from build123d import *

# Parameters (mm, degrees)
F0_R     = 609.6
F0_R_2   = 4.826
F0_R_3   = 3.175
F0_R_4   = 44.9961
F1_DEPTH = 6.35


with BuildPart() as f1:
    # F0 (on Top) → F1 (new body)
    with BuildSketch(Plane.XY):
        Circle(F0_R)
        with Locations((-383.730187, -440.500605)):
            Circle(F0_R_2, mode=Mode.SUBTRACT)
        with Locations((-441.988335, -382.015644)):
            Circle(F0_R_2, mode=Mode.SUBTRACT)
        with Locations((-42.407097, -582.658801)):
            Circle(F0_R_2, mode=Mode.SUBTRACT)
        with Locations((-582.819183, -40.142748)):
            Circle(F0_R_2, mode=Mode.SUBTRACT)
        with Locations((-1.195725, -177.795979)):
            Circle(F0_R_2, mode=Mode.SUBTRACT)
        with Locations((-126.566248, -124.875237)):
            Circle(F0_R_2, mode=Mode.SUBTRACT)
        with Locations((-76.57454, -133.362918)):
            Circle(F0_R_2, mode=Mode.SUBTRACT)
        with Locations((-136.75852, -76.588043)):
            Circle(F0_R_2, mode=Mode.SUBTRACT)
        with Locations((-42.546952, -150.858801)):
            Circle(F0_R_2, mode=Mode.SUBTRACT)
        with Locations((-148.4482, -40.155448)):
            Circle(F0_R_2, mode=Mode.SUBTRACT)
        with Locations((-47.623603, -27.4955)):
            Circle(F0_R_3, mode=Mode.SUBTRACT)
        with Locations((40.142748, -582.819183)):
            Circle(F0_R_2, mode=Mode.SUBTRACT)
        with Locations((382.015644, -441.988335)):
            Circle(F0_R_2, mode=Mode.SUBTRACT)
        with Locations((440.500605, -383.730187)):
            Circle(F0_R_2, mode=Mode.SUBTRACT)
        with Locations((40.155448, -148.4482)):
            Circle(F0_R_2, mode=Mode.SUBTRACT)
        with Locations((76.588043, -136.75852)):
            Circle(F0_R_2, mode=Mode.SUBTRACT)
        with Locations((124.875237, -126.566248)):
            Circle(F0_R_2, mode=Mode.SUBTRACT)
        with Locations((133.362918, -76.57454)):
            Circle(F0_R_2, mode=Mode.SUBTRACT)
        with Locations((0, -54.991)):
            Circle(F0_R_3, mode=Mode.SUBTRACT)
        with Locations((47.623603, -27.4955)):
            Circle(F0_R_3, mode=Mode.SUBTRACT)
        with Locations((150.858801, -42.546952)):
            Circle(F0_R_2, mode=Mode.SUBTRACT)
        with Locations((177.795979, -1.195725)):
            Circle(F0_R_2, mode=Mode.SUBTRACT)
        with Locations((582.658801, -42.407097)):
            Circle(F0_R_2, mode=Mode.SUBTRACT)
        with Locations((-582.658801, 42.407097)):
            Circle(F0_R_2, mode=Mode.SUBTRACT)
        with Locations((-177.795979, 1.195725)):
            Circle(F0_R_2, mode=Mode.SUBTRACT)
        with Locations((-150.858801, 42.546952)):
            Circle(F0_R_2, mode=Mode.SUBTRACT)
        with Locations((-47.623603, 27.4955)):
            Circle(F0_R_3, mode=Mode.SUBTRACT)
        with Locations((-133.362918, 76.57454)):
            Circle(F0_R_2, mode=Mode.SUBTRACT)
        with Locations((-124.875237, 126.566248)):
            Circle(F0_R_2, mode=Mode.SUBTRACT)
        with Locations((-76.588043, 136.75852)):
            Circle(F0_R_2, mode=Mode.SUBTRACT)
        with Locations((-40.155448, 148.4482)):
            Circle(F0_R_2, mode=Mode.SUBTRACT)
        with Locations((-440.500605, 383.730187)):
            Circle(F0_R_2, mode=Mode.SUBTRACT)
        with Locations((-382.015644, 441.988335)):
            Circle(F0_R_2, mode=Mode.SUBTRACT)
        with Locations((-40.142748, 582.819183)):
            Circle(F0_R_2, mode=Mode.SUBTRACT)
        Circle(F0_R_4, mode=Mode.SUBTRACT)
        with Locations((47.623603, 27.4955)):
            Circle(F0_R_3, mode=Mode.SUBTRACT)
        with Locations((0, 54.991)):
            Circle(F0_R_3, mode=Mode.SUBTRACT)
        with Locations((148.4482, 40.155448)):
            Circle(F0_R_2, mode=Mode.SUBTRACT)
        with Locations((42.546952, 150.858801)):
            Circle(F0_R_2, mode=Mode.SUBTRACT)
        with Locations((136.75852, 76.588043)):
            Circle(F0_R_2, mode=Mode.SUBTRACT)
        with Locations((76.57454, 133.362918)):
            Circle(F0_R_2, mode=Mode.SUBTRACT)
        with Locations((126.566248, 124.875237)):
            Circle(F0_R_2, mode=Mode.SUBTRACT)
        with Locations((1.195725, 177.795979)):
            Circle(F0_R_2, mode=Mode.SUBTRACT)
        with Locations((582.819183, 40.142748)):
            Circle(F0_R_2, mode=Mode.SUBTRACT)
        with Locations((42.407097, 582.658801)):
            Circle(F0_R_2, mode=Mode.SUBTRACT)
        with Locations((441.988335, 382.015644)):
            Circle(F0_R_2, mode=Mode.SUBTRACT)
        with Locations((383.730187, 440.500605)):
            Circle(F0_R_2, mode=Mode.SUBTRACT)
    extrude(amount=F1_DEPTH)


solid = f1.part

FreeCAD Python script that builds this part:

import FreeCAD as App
import Part
import Sketcher
Q = App.Units.Quantity

doc = App.newDocument("Part")
params = doc.addObject("Spreadsheet::Sheet", "Params")
for row, (alias, value) in enumerate([
    ("sketch1_diameter", "48 in"),
    ("sketch1_diameter2", "0.38 in"),
    ("sketch1_diameter3", "0.25 in"),
    ("sketch1_diameter4", "3.543 in"),
    ("pad1_length", "0.25 in"),
], start=1):
    params.set(f"A{row}", alias)
    params.set(f"B{row}", "=" + value)
    params.setAlias(f"B{row}", alias)

body = doc.addObject("PartDesign::Body", "Body")

sketch1 = doc.addObject("Sketcher::SketchObject", "Sketch")
body.addObject(sketch1)
sketch1.AttachmentSupport = (doc.XY_Plane, [""])
sketch1.MapMode = "FlatFace"
sketch1.addGeometry([
    Part.Circle(App.Vector(0, 0, 0), App.Vector(0, 0, 1), 609.6),
    Part.Circle(App.Vector(-441.988335, -382.015644, 0), App.Vector(0, 0, 1), 4.826),
    Part.Circle(App.Vector(-383.730187, -440.500605, 0), App.Vector(0, 0, 1), 4.826),
    Part.Circle(App.Vector(-42.407097, -582.658801, 0), App.Vector(0, 0, 1), 4.826),
    Part.Circle(App.Vector(-582.819183, -40.142748, 0), App.Vector(0, 0, 1), 4.826),
    Part.Circle(App.Vector(-42.546952, -150.858801, 0), App.Vector(0, 0, 1), 4.826),
    Part.Circle(App.Vector(-1.195725, -177.795979, 0), App.Vector(0, 0, 1), 4.826),
    Part.Circle(App.Vector(-148.4482, -40.155448, 0), App.Vector(0, 0, 1), 4.826),
    Part.Circle(App.Vector(-126.566248, -124.875237, 0), App.Vector(0, 0, 1), 4.826),
    Part.Circle(App.Vector(-76.57454, -133.362918, 0), App.Vector(0, 0, 1), 4.826),
    Part.Circle(App.Vector(-136.75852, -76.588043, 0), App.Vector(0, 0, 1), 4.826),
    Part.Circle(App.Vector(0, -54.991, 0), App.Vector(0, 0, 1), 3.175),
    Part.Circle(App.Vector(-47.623603, -27.4955, 0), App.Vector(0, 0, 1), 3.175),
    Part.Circle(App.Vector(0, 0, 0), App.Vector(0, 0, 1), 44.9961),
    Part.Circle(App.Vector(40.142748, -582.819183, 0), App.Vector(0, 0, 1), 4.826),
    Part.Circle(App.Vector(382.015644, -441.988335, 0), App.Vector(0, 0, 1), 4.826),
    Part.Circle(App.Vector(440.500605, -383.730187, 0), App.Vector(0, 0, 1), 4.826),
    Part.Circle(App.Vector(40.155448, -148.4482, 0), App.Vector(0, 0, 1), 4.826),
    Part.Circle(App.Vector(76.588043, -136.75852, 0), App.Vector(0, 0, 1), 4.826),
    Part.Circle(App.Vector(124.875237, -126.566248, 0), App.Vector(0, 0, 1), 4.826),
    Part.Circle(App.Vector(133.362918, -76.57454, 0), App.Vector(0, 0, 1), 4.826),
    Part.Circle(App.Vector(47.623603, -27.4955, 0), App.Vector(0, 0, 1), 3.175),
    Part.Circle(App.Vector(150.858801, -42.546952, 0), App.Vector(0, 0, 1), 4.826),
    Part.Circle(App.Vector(177.795979, -1.195725, 0), App.Vector(0, 0, 1), 4.826),
    Part.Circle(App.Vector(582.658801, -42.407097, 0), App.Vector(0, 0, 1), 4.826),
    Part.Circle(App.Vector(-582.658801, 42.407097, 0), App.Vector(0, 0, 1), 4.826),
    Part.Circle(App.Vector(-177.795979, 1.195725, 0), App.Vector(0, 0, 1), 4.826),
    Part.Circle(App.Vector(-150.858801, 42.546952, 0), App.Vector(0, 0, 1), 4.826),
    Part.Circle(App.Vector(-47.623603, 27.4955, 0), App.Vector(0, 0, 1), 3.175),
    Part.Circle(App.Vector(0, 54.991, 0), App.Vector(0, 0, 1), 3.175),
    Part.Circle(App.Vector(-133.362918, 76.57454, 0), App.Vector(0, 0, 1), 4.826),
    Part.Circle(App.Vector(-124.875237, 126.566248, 0), App.Vector(0, 0, 1), 4.826),
    Part.Circle(App.Vector(-76.588043, 136.75852, 0), App.Vector(0, 0, 1), 4.826),
    Part.Circle(App.Vector(-40.155448, 148.4482, 0), App.Vector(0, 0, 1), 4.826),
    Part.Circle(App.Vector(-440.500605, 383.730187, 0), App.Vector(0, 0, 1), 4.826),
    Part.Circle(App.Vector(-382.015644, 441.988335, 0), App.Vector(0, 0, 1), 4.826),
    Part.Circle(App.Vector(-40.142748, 582.819183, 0), App.Vector(0, 0, 1), 4.826),
    Part.Circle(App.Vector(47.623603, 27.4955, 0), App.Vector(0, 0, 1), 3.175),
    Part.Circle(App.Vector(136.75852, 76.588043, 0), App.Vector(0, 0, 1), 4.826),
    Part.Circle(App.Vector(76.57454, 133.362918, 0), App.Vector(0, 0, 1), 4.826),
    Part.Circle(App.Vector(126.566248, 124.875237, 0), App.Vector(0, 0, 1), 4.826),
    Part.Circle(App.Vector(148.4482, 40.155448, 0), App.Vector(0, 0, 1), 4.826),
    Part.Circle(App.Vector(1.195725, 177.795979, 0), App.Vector(0, 0, 1), 4.826),
    Part.Circle(App.Vector(42.546952, 150.858801, 0), App.Vector(0, 0, 1), 4.826),
    Part.Circle(App.Vector(582.819183, 40.142748, 0), App.Vector(0, 0, 1), 4.826),
    Part.Circle(App.Vector(42.407097, 582.658801, 0), App.Vector(0, 0, 1), 4.826),
    Part.Circle(App.Vector(383.730187, 440.500605, 0), App.Vector(0, 0, 1), 4.826),
    Part.Circle(App.Vector(441.988335, 382.015644, 0), App.Vector(0, 0, 1), 4.826),
], False)
sketch1.addConstraint([
    Sketcher.Constraint("Coincident", 0, 3, -1, 1),
    Sketcher.Constraint("Coincident", 13, 3, -1, 1),
    Sketcher.Constraint("Equal", 1, 2),
    Sketcher.Constraint("Equal", 2, 3),
    Sketcher.Constraint("Equal", 3, 4),
    Sketcher.Constraint("Equal", 4, 5),
    Sketcher.Constraint("Equal", 5, 6),
    Sketcher.Constraint("Equal", 6, 7),
    Sketcher.Constraint("Equal", 7, 8),
    Sketcher.Constraint("Equal", 8, 9),
    Sketcher.Constraint("Equal", 9, 10),
    Sketcher.Constraint("Equal", 11, 12),
    Sketcher.Constraint("Equal", 10, 14),
    Sketcher.Constraint("Equal", 14, 15),
    Sketcher.Constraint("Equal", 15, 16),
    Sketcher.Constraint("Equal", 16, 17),
    Sketcher.Constraint("Equal", 17, 18),
    Sketcher.Constraint("Equal", 18, 19),
    Sketcher.Constraint("Equal", 19, 20),
    Sketcher.Constraint("Equal", 12, 21),
    Sketcher.Constraint("Equal", 20, 22),
    Sketcher.Constraint("Equal", 22, 23),
    Sketcher.Constraint("Equal", 23, 24),
    Sketcher.Constraint("Equal", 24, 25),
    Sketcher.Constraint("Equal", 25, 26),
    Sketcher.Constraint("Equal", 26, 27),
    Sketcher.Constraint("Equal", 21, 28),
    Sketcher.Constraint("Equal", 28, 29),
    Sketcher.Constraint("Equal", 27, 30),
    Sketcher.Constraint("Equal", 30, 31),
    Sketcher.Constraint("Equal", 31, 32),
    Sketcher.Constraint("Equal", 32, 33),
    Sketcher.Constraint("Equal", 33, 34),
    Sketcher.Constraint("Equal", 34, 35),
    Sketcher.Constraint("Equal", 35, 36),
    Sketcher.Constraint("Equal", 29, 37),
    Sketcher.Constraint("Equal", 36, 38),
    Sketcher.Constraint("Equal", 38, 39),
    Sketcher.Constraint("Equal", 39, 40),
    Sketcher.Constraint("Equal", 40, 41),
    Sketcher.Constraint("Equal", 41, 42),
    Sketcher.Constraint("Equal", 42, 43),
    Sketcher.Constraint("Equal", 43, 44),
    Sketcher.Constraint("Equal", 44, 45),
    Sketcher.Constraint("Equal", 45, 46),
    Sketcher.Constraint("Equal", 46, 47),
    Sketcher.Constraint("Symmetric", 24, 3, 25, 3, -1, 1),
    Sketcher.Constraint("Symmetric", 23, 3, 26, 3, -1, 1),
    Sketcher.Constraint("Symmetric", 22, 3, 27, 3, -1, 1),
    Sketcher.Constraint("Symmetric", 21, 3, 28, 3, -1, 1),
    Sketcher.Constraint("Symmetric", 11, 3, 29, 3, -1, 1),
    Sketcher.Constraint("Symmetric", 20, 3, 30, 3, -1, 1),
    Sketcher.Constraint("Symmetric", 19, 3, 31, 3, -1, 1),
    Sketcher.Constraint("Symmetric", 18, 3, 32, 3, -1, 1),
    Sketcher.Constraint("Symmetric", 17, 3, 33, 3, -1, 1),
    Sketcher.Constraint("Symmetric", 16, 3, 34, 3, -1, 1),
    Sketcher.Constraint("Symmetric", 15, 3, 35, 3, -1, 1),
    Sketcher.Constraint("Symmetric", 14, 3, 36, 3, -1, 1),
    Sketcher.Constraint("Symmetric", 12, 3, 37, 3, -1, 1),
    Sketcher.Constraint("Symmetric", 10, 3, 38, 3, -1, 1),
    Sketcher.Constraint("Symmetric", 9, 3, 39, 3, -1, 1),
    Sketcher.Constraint("Symmetric", 8, 3, 40, 3, -1, 1),
    Sketcher.Constraint("Symmetric", 7, 3, 41, 3, -1, 1),
    Sketcher.Constraint("Symmetric", 6, 3, 42, 3, -1, 1),
    Sketcher.Constraint("Symmetric", 5, 3, 43, 3, -1, 1),
    Sketcher.Constraint("Symmetric", 4, 3, 44, 3, -1, 1),
    Sketcher.Constraint("Symmetric", 3, 3, 45, 3, -1, 1),
    Sketcher.Constraint("Symmetric", 2, 3, 46, 3, -1, 1),
    Sketcher.Constraint("Symmetric", 1, 3, 47, 3, -1, 1),
    Sketcher.Constraint("Symmetric", 12, 3, 21, 3, -2),
    Sketcher.Constraint("PointOnObject", 11, 3, -2),
    Sketcher.Constraint("Diameter", 0, Q("48 in")),
    Sketcher.Constraint("Diameter", 1, Q("0.38 in")),
    Sketcher.Constraint("Diameter", 11, Q("0.25 in")),
    Sketcher.Constraint("Diameter", 13, Q("3.543 in")),
    Sketcher.Constraint("DistanceY", 3, 3, 5, 3, Q("17 in")),
    Sketcher.Constraint("DistanceX", 22, 3, 24, 3, Q("17 in")),
    Sketcher.Constraint("DistanceY", 11, 3, -1, 1, Q("2.165 in")),
    Sketcher.Constraint("DistanceX", 5, 3, 17, 3, Q("3.256 in")),
    Sketcher.Constraint("DistanceY", 7, 3, 27, 3, Q("3.256 in")),
    Sketcher.Constraint("DistanceY", 12, 3, 28, 3, Q("2.165 in")),
    Sketcher.Constraint("DistanceY", 7, 3, 4, 3, Q("0.0005 in")),
    Sketcher.Constraint("DistanceX", 5, 3, 14, 3, Q("3.2555 in")),
    Sketcher.Constraint("DistanceY", 3, 3, -1, 1, 582.658801),
    Sketcher.Constraint("DistanceX", 7, 3, -1, 1, 148.4482),
    Sketcher.Constraint("DistanceY", 17, 3, -1, 1, 148.4482),
    Sketcher.Constraint("DistanceX", -1, 1, 22, 3, 150.858801),
    Sketcher.Constraint("DistanceY", 18, 3, 9, 3, 3.395602),
    Sketcher.Constraint("DistanceX", 35, 3, 32, 3, 305.427601),
    Sketcher.Constraint("DistanceY", 38, 3, 47, 3, 305.427601),
    Sketcher.Constraint("DistanceX", 5, 3, -1, 1, 42.546952),
    Sketcher.Constraint("DistanceY", 6, 3, -1, 1, 177.795979),
    Sketcher.Constraint("DistanceX", 8, 3, -1, 1, 126.566248),
    Sketcher.Constraint("DistanceX", 9, 3, -1, 1, 76.57454),
    Sketcher.Constraint("DistanceY", 9, 3, -1, 1, 133.362918),
    Sketcher.Constraint("DistanceX", 10, 3, -1, 1, 136.75852),
    Sketcher.Constraint("DistanceY", 19, 3, -1, 1, 126.566248),
    Sketcher.Constraint("DistanceX", -1, 1, 20, 3, 133.362918),
    Sketcher.Constraint("DistanceY", 20, 3, -1, 1, 76.57454),
    Sketcher.Constraint("DistanceY", 22, 3, -1, 1, 42.546952),
    Sketcher.Constraint("DistanceX", -1, 1, 23, 3, 177.795979),
    Sketcher.Constraint("DistanceX", 1, 3, 2, 3, 58.258148),
    Sketcher.Constraint("DistanceY", 2, 3, 1, 3, 58.484961),
    Sketcher.Constraint("DistanceX", 2, 3, 3, 3, 341.32309),
    Sketcher.Constraint("DistanceX", 4, 3, 5, 3, 540.272231),
    Sketcher.Constraint("DistanceX", 3, 3, 6, 3, 41.211372),
    Sketcher.Constraint("DistanceY", 8, 3, 7, 3, 84.719789),
    Sketcher.Constraint("DistanceY", 5, 3, 10, 3, 74.270758),
    Sketcher.Constraint("DistanceY", 14, 3, 3, 3, 0.160382),
    Sketcher.Constraint("DistanceX", 3, 3, 15, 3, 424.422741),
    Sketcher.Constraint("DistanceX", 15, 3, 16, 3, 58.484961),
    Sketcher.Constraint("DistanceY", 15, 3, 16, 3, 58.258148),
    Sketcher.Constraint("DistanceY", 16, 3, 6, 3, 205.934208),
    Sketcher.Constraint("DistanceX", 12, 3, 17, 3, 87.779051),
    Sketcher.Constraint("DistanceX", 17, 3, 19, 3, 84.719789),
    Sketcher.Constraint("DistanceX", 6, 3, 19, 3, 126.070962),
    Sketcher.Constraint("DistanceY", 16, 3, 24, 3, 341.32309),
    Sketcher.Constraint("DistanceY", 24, 3, 23, 3, 41.211372),
])
sketch1.setExpression("Constraints[71]", "Params.sketch1_diameter")
sketch1.setExpression("Constraints[72]", "Params.sketch1_diameter2")
sketch1.setExpression("Constraints[73]", "Params.sketch1_diameter3")
sketch1.setExpression("Constraints[74]", "Params.sketch1_diameter4")
pad1 = doc.addObject("PartDesign::Pad", "Pad")
body.addObject(pad1)
pad1.Profile = sketch1
pad1.setExpression("Length", "Params.pad1_length")

doc.recompute()
